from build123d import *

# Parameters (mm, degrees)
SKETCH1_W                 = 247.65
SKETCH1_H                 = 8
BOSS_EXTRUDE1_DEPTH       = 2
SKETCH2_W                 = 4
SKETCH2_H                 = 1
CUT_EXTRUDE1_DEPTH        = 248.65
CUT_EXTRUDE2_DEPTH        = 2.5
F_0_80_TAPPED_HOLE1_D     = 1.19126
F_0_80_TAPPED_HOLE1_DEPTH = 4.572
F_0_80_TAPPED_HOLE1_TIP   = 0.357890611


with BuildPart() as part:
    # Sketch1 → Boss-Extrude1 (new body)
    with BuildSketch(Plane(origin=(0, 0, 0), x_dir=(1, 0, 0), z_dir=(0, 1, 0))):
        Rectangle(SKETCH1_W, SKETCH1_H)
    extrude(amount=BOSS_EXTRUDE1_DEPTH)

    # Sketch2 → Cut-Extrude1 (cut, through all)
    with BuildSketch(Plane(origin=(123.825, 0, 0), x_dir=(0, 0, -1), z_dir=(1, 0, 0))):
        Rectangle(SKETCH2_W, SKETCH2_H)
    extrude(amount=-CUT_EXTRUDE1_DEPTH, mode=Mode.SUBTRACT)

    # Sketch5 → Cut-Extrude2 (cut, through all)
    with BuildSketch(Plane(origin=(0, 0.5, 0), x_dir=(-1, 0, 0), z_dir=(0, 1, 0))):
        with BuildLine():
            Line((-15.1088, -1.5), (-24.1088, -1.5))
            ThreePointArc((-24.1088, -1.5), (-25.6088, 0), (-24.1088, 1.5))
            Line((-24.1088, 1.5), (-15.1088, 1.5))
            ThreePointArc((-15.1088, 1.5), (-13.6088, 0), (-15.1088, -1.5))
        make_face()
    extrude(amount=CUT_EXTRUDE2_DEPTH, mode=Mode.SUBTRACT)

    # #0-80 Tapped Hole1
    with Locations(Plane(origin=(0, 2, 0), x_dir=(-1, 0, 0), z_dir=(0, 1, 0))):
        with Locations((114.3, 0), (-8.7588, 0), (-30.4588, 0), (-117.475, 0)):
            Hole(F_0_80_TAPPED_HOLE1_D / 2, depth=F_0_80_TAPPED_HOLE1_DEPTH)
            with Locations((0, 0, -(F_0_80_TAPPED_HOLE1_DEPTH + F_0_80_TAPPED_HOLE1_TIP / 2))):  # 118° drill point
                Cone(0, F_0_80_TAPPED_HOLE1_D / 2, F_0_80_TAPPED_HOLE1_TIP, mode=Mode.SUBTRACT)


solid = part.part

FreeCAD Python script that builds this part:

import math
import FreeCAD as App
import Part
import Sketcher

doc = App.newDocument("Part")
body = doc.addObject("PartDesign::Body", "Body")

# Sketch on XZ plane
sketch1 = body.newObject("Sketcher::SketchObject", "Sketch")
sketch1.AttachmentSupport = (doc.getObject("XZ_Plane"), [""])
sketch1.MapMode = "FlatFace"
sketch1.addGeometry([
    Part.LineSegment(App.Vector(-123.825, -4, 0), App.Vector(-123.825, 4, 0)),
    Part.LineSegment(App.Vector(-123.825, 4, 0), App.Vector(123.825, 4, 0)),
    Part.LineSegment(App.Vector(123.825, 4, 0), App.Vector(123.825, -4, 0)),
    Part.LineSegment(App.Vector(123.825, -4, 0), App.Vector(-123.825, -4, 0)),
], False)
sketch1.addConstraint([
    Sketcher.Constraint("Coincident", 0, 2, 1, 1),
    Sketcher.Constraint("Coincident", 1, 2, 2, 1),
    Sketcher.Constraint("Coincident", 2, 2, 3, 1),
    Sketcher.Constraint("Coincident", 3, 2, 0, 1),
    Sketcher.Constraint("Vertical", 0),
    Sketcher.Constraint("Horizontal", 1),
    Sketcher.Constraint("Vertical", 2),
    Sketcher.Constraint("Horizontal", 3),
    Sketcher.Constraint("Symmetric", 0, 2, 2, 2, -1, 1),
    Sketcher.Constraint("DistanceY", 0, 1, 0, 2, 8.0),
    Sketcher.Constraint("DistanceX", 1, 1, 1, 2, 247.65),
])
pad1 = body.newObject("PartDesign::Pad", "Pad")
pad1.Profile = sketch1
pad1.Length = 2
pad1.Reversed = True

# Sketch on YZ plane
sketch2 = body.newObject("Sketcher::SketchObject", "Sketch001")
sketch2.AttachmentSupport = (doc.getObject("YZ_Plane"), [""])
sketch2.MapMode = "FlatFace"
sketch2.AttachmentOffset = App.Placement(App.Vector(0, 0, 123.825), App.Rotation())
sketch2.addGeometry([
    Part.LineSegment(App.Vector(0.5, 2, 0), App.Vector(-0.5, 2, 0)),
    Part.LineSegment(App.Vector(-0.5, 2, 0), App.Vector(-0.5, -2, 0)),
    Part.LineSegment(App.Vector(-0.5, -2, 0), App.Vector(0.5, -2, 0)),
    Part.LineSegment(App.Vector(0.5, -2, 0), App.Vector(0.5, 2, 0)),
], False)
sketch2.addConstraint([
    Sketcher.Constraint("Coincident", 0, 2, 1, 1),
    Sketcher.Constraint("Coincident", 1, 2, 2, 1),
    Sketcher.Constraint("Coincident", 2, 2, 3, 1),
    Sketcher.Constraint("Coincident", 3, 2, 0, 1),
    Sketcher.Constraint("Horizontal", 0),
    Sketcher.Constraint("Vertical", 1),
    Sketcher.Constraint("Horizontal", 2),
    Sketcher.Constraint("Vertical", 3),
    Sketcher.Constraint("Symmetric", 0, 2, 2, 2, -1, 1),
    Sketcher.Constraint("DistanceX", 0, 2, 0, 1, 1.0),
    Sketcher.Constraint("DistanceY", 1, 2, 1, 1, 4.0),
])
pocket1 = body.newObject("PartDesign::Pocket", "Pocket")
pocket1.Profile = sketch2
pocket1.Type = "ThroughAll"

# Sketch on XZ plane
sketch3 = body.newObject("Sketcher::SketchObject", "Sketch002")
sketch3.AttachmentSupport = (doc.getObject("XZ_Plane"), [""])
sketch3.MapMode = "FlatFace"
sketch3.AttachmentOffset = App.Placement(App.Vector(0, 0, -0.5), App.Rotation())
sketch3.addGeometry([
    Part.LineSegment(App.Vector(24.1088, -1.5, 0), App.Vector(15.1088, -1.5, 0)),
    Part.ArcOfCircle(Part.Circle(App.Vector(15.1088, 0, 0), App.Vector(0, 0, 1), 1.5), math.radians(90), math.radians(270)),
    Part.LineSegment(App.Vector(15.1088, 1.5, 0), App.Vector(24.1088, 1.5, 0)),
    Part.ArcOfCircle(Part.Circle(App.Vector(24.1088, 0, 0), App.Vector(0, 0, 1), 1.5), math.radians(-90), math.radians(90)),
], False)
sketch3.addConstraint([
    Sketcher.Constraint("Tangent", 0, 2, 1, 2),
    Sketcher.Constraint("Tangent", 1, 1, 2, 1),
    Sketcher.Constraint("Tangent", 2, 2, 3, 2),
    Sketcher.Constraint("Tangent", 3, 1, 0, 1),
    Sketcher.Constraint("Horizontal", 0),
    Sketcher.Constraint("Horizontal", 2),
    Sketcher.Constraint("PointOnObject", 1, 3, -1),
    Sketcher.Constraint("Radius", 1, 1.5),
    Sketcher.Constraint("DistanceX", 0, 2, 0, 1, 9.0),
    Sketcher.Constraint("DistanceX", -1, 1, 1, 3, 15.1088),
])
pocket2 = body.newObject("PartDesign::Pocket", "Pocket001")
pocket2.Profile = sketch3
pocket2.Type = "ThroughAll"

# Sketch on XZ plane
sketch4 = body.newObject("Sketcher::SketchObject", "Sketch003")
sketch4.AttachmentSupport = (doc.getObject("XZ_Plane"), [""])
sketch4.MapMode = "FlatFace"
sketch4.AttachmentOffset = App.Placement(App.Vector(0, 0, -2), App.Rotation())
sketch4.addGeometry([
    Part.Circle(App.Vector(-114.3, 0, 0), App.Vector(0, 0, 1), 0.59563),
    Part.Circle(App.Vector(8.7588, 0, 0), App.Vector(0, 0, 1), 0.59563),
    Part.Circle(App.Vector(30.4588, 0, 0), App.Vector(0, 0, 1), 0.59563),
    Part.Circle(App.Vector(117.475, 0, 0), App.Vector(0, 0, 1), 0.59563),
], False)
sketch4.addConstraint([
    Sketcher.Constraint("Equal", 0, 1),
    Sketcher.Constraint("Equal", 1, 2),
    Sketcher.Constraint("Equal", 2, 3),
    Sketcher.Constraint("PointOnObject", 0, 3, -1),
    Sketcher.Constraint("PointOnObject", 1, 3, -1),
    Sketcher.Constraint("PointOnObject", 2, 3, -1),
    Sketcher.Constraint("PointOnObject", 3, 3, -1),
    Sketcher.Constraint("DistanceX", 0, 3, -1, 1, 114.3),
    Sketcher.Constraint("DistanceX", 1, 3, 2, 3, 21.7),
    Sketcher.Constraint("Diameter", 0, 1.19126),
    Sketcher.Constraint("DistanceX", -1, 1, 3, 3, 117.475),
    Sketcher.Constraint("DistanceX", -1, 1, 1, 3, 8.7588),
])
doc.recompute()
hole = body.newObject("PartDesign::Hole", "Hole")
hole.Profile = sketch4
hole.ThreadType = "None"
hole.Diameter = 1.19126
hole.DepthType = "Dimension"
hole.Depth = 4.572
hole.DrillPoint = "Angled"
hole.DrillPointAngle = 118
hole.Reversed = True

doc.recompute()
